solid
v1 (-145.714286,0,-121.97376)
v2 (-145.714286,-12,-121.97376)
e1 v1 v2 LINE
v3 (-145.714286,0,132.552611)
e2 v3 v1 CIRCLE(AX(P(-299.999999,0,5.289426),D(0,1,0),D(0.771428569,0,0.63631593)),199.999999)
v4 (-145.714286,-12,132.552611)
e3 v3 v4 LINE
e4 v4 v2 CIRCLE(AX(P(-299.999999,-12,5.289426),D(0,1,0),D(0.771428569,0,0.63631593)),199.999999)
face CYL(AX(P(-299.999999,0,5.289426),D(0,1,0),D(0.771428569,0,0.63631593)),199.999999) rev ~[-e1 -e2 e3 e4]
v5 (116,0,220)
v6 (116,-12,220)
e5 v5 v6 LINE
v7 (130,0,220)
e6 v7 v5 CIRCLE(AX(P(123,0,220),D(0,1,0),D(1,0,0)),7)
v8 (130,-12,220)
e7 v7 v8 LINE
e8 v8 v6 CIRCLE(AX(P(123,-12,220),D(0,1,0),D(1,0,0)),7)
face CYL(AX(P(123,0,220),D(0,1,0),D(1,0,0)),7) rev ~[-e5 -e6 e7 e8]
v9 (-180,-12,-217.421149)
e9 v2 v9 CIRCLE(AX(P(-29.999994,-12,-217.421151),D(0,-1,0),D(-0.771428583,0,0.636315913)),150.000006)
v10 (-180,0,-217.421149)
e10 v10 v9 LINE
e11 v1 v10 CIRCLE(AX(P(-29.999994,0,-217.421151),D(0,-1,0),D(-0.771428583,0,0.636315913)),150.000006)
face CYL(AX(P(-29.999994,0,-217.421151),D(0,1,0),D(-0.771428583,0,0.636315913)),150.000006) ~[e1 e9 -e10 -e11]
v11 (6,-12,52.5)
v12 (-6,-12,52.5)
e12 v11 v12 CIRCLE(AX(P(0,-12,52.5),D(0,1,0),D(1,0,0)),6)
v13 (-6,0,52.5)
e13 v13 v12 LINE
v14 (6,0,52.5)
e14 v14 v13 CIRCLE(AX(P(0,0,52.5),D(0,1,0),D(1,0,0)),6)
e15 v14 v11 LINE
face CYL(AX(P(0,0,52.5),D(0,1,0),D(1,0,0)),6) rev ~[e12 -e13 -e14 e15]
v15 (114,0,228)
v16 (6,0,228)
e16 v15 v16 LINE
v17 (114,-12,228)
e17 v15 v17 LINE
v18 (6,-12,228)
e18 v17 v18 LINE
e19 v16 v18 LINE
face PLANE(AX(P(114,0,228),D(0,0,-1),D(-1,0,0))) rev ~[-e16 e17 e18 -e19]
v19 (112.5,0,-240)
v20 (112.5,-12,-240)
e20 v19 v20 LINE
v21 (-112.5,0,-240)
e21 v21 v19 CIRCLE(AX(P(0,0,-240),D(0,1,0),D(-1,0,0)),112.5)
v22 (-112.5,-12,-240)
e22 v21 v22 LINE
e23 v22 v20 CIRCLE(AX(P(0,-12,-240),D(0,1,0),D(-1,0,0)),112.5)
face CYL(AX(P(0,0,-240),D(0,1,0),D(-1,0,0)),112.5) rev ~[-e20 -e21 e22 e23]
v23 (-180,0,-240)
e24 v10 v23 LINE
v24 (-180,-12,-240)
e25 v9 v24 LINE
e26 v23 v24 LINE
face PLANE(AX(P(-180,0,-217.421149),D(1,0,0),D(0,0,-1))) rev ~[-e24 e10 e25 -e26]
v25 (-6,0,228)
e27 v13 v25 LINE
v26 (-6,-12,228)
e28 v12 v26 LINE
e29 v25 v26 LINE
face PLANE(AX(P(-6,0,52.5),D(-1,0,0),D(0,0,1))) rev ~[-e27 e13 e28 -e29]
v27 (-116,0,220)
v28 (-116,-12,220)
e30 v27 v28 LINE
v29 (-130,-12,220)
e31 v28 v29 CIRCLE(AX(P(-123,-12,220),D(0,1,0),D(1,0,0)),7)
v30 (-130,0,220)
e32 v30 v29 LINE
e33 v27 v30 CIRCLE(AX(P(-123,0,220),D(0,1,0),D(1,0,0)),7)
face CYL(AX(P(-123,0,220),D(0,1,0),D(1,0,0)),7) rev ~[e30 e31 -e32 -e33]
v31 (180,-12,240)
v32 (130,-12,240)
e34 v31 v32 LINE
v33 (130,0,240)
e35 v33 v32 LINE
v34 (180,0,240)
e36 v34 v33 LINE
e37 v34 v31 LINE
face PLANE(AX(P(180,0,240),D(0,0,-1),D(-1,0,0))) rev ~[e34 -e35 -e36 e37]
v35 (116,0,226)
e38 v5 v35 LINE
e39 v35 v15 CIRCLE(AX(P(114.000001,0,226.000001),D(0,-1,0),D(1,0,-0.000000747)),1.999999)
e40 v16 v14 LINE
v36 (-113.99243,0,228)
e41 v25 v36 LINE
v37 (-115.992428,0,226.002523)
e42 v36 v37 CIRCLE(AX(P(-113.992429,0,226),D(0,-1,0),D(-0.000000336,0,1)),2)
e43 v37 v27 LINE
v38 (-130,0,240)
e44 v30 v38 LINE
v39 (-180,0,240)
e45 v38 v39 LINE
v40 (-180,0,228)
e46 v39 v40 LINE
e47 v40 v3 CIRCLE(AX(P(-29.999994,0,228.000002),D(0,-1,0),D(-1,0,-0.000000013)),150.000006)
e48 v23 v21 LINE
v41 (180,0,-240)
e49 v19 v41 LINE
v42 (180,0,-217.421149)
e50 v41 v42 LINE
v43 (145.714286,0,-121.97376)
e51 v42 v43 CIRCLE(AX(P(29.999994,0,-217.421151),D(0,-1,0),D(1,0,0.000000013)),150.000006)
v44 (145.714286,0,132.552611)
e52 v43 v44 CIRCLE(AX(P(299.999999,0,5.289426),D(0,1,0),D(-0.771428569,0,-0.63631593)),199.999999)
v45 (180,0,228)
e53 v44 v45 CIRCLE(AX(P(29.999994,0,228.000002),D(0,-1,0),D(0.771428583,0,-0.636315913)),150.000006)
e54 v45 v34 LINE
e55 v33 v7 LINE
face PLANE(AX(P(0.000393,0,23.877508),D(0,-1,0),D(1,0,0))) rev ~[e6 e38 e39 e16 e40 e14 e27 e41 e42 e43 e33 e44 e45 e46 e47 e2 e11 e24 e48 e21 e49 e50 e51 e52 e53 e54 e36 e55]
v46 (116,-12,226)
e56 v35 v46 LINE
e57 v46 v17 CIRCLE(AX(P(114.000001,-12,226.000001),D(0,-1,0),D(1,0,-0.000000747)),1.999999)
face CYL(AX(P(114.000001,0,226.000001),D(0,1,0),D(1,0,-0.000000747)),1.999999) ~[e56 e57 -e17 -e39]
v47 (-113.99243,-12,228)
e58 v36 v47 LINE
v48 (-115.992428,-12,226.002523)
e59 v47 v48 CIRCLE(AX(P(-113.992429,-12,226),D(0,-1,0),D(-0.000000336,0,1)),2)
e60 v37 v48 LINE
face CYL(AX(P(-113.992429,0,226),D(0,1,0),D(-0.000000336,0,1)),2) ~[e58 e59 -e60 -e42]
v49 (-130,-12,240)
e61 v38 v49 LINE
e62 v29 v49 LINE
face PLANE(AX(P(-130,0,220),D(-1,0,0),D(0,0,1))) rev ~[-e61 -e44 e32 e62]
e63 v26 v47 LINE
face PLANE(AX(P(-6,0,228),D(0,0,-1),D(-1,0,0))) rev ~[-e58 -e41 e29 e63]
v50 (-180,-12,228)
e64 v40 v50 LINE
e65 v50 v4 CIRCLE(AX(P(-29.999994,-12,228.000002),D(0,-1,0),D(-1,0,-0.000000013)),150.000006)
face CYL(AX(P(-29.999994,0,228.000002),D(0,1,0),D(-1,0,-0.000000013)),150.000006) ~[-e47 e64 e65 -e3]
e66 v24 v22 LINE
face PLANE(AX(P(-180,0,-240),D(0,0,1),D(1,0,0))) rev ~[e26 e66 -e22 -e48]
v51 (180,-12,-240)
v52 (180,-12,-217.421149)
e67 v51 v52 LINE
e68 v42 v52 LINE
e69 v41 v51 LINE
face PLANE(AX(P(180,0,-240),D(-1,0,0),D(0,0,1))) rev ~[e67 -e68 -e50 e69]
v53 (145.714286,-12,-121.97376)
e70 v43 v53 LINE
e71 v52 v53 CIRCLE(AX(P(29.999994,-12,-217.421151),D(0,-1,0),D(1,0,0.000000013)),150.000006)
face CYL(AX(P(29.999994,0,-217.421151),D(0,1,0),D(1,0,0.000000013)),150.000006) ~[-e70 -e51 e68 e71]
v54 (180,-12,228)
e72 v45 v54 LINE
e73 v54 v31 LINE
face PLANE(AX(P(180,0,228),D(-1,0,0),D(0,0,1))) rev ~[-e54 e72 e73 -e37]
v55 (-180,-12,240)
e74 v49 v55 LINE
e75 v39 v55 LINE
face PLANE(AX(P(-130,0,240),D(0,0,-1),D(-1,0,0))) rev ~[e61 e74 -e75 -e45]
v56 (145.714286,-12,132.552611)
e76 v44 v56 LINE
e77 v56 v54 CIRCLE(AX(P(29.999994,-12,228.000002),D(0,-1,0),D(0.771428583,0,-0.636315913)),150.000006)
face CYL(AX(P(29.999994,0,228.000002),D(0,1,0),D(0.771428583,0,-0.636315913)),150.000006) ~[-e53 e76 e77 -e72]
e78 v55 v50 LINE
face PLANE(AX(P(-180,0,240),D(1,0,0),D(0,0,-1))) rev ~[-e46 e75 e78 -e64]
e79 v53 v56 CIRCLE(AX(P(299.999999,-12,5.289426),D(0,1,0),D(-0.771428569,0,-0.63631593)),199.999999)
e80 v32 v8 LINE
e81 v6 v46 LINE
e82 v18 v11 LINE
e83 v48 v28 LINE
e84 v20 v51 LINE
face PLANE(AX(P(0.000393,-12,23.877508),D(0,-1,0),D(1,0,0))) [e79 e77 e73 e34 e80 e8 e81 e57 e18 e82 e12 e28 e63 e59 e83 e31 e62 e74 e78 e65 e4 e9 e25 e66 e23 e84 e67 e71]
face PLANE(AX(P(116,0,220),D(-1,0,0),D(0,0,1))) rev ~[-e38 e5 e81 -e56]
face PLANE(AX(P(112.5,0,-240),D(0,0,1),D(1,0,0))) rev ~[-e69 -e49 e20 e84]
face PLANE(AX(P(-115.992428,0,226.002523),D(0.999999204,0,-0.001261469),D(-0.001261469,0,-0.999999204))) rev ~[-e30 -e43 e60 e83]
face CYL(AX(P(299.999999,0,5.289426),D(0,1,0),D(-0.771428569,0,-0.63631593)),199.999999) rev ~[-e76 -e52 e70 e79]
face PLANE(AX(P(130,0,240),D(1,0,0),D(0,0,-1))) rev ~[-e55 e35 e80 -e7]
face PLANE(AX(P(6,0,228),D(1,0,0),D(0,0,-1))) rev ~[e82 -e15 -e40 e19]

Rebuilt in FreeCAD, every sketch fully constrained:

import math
import FreeCAD as App
import Part
import Sketcher

V = App.Vector

doc = App.newDocument("Part")
params = doc.addObject("Spreadsheet::Sheet", "Params")
for row, (alias, value) in enumerate([
    ("sketch1_radius", "199.999999 mm"),
    ("sketch1_radius2", "7 mm"),
    ("sketch1_radius3", "1.999999 mm"),
    ("sketch1_radius4", "6 mm"),
    ("sketch1_radius5", "112.5 mm"),
    ("pad1_length", "12 mm"),
], start=1):
    params.set(f"A{row}", alias)
    params.set(f"B{row}", "=" + value)
    params.setAlias(f"B{row}", alias)

body = doc.addObject("PartDesign::Body", "Body")

sketch1 = body.newObject("Sketcher::SketchObject", "Sketch")
sketch1.AttachmentSupport = (doc.getObject("XZ_Plane"), [""])
sketch1.MapMode = "FlatFace"
sketch1.addGeometry([
    Part.LineSegment(V(-180, -217.4, 0), V(-180, -240, 0)),
    Part.LineSegment(V(-180, -240, 0), V(-112.5, -240, 0)),
    Part.ArcOfCircle(Part.Circle(V(0, -240, 0), V(0, 0, 1), 112.5), math.radians(0), math.radians(180)),
    Part.LineSegment(V(112.5, -240, 0), V(180, -240, 0)),
    Part.LineSegment(V(180, -240, 0), V(180, -217.4, 0)),
    Part.ArcOfCircle(Part.Circle(V(30, -217.4, 0), V(0, 0, 1), 150), math.radians(0), math.radians(40)),
    Part.ArcOfCircle(Part.Circle(V(300, 5.3, 0), V(0, 0, 1), 200), math.radians(140), math.radians(220)),
    Part.ArcOfCircle(Part.Circle(V(30, 228, 0), V(0, 0, 1), 150), math.radians(-40), math.radians(0)),
    Part.LineSegment(V(180, 228, 0), V(180, 240, 0)),
    Part.LineSegment(V(180, 240, 0), V(130, 240, 0)),
    Part.LineSegment(V(130, 240, 0), V(130, 220, 0)),
    Part.ArcOfCircle(Part.Circle(V(123, 220, 0), V(0, 0, 1), 7), math.radians(180), math.radians(360)),
    Part.LineSegment(V(116, 220, 0), V(116, 226, 0)),
    Part.ArcOfCircle(Part.Circle(V(114, 226, 0), V(0, 0, 1), 2), math.radians(0), math.radians(90)),
    Part.LineSegment(V(114, 228, 0), V(6, 228, 0)),
    Part.LineSegment(V(6, 228, 0), V(6, 52.5, 0)),
    Part.ArcOfCircle(Part.Circle(V(0, 52.5, 0), V(0, 0, 1), 6), math.radians(180), math.radians(360)),
    Part.LineSegment(V(-6, 52.5, 0), V(-6, 228, 0)),
    Part.LineSegment(V(-6, 228, 0), V(-114, 228, 0)),
    Part.ArcOfCircle(Part.Circle(V(-114, 226, 0), V(0, 0, 1), 2), math.radians(90), math.radians(180)),
    Part.LineSegment(V(-116, 226, 0), V(-116, 220, 0)),
    Part.ArcOfCircle(Part.Circle(V(-123, 220, 0), V(0, 0, 1), 7), math.radians(180), math.radians(360)),
    Part.LineSegment(V(-130, 220, 0), V(-130, 240, 0)),
    Part.LineSegment(V(-130, 240, 0), V(-180, 240, 0)),
    Part.LineSegment(V(-180, 240, 0), V(-180, 228, 0)),
    Part.ArcOfCircle(Part.Circle(V(-30, 228, 0), V(0, 0, 1), 150), math.radians(-180), math.radians(-140)),
    Part.ArcOfCircle(Part.Circle(V(-300, 5.3, 0), V(0, 0, 1), 200), math.radians(-40), math.radians(40)),
    Part.ArcOfCircle(Part.Circle(V(-30, -217.4, 0), V(0, 0, 1), 150), math.radians(140), math.radians(180)),
], False)
sketch1.addConstraint([
    Sketcher.Constraint("Coincident", 0, 2, 1, 1),
    Sketcher.Constraint("Coincident", 1, 2, 2, 2),
    Sketcher.Constraint("Coincident", 2, 1, 3, 1),
    Sketcher.Constraint("Coincident", 3, 2, 4, 1),
    Sketcher.Constraint("Tangent", 4, 2, 5, 1),
    Sketcher.Constraint("Tangent", 5, 2, 6, 2),
    Sketcher.Constraint("Tangent", 6, 1, 7, 1),
    Sketcher.Constraint("Tangent", 7, 2, 8, 1),
    Sketcher.Constraint("Coincident", 8, 2, 9, 1),
    Sketcher.Constraint("Coincident", 9, 2, 10, 1),
    Sketcher.Constraint("Tangent", 10, 2, 11, 2),
    Sketcher.Constraint("Tangent", 11, 1, 12, 1),
    Sketcher.Constraint("Tangent", 12, 2, 13, 1),
    Sketcher.Constraint("Tangent", 13, 2, 14, 1),
    Sketcher.Constraint("Coincident", 14, 2, 15, 1),
    Sketcher.Constraint("Tangent", 15, 2, 16, 2),
    Sketcher.Constraint("Tangent", 16, 1, 17, 1),
    Sketcher.Constraint("Coincident", 17, 2, 18, 1),
    Sketcher.Constraint("Tangent", 18, 2, 19, 1),
    Sketcher.Constraint("Tangent", 19, 2, 20, 1),
    Sketcher.Constraint("Coincident", 20, 2, 21, 2),
    Sketcher.Constraint("Tangent", 21, 1, 22, 1),
    Sketcher.Constraint("Coincident", 22, 2, 23, 1),
    Sketcher.Constraint("Coincident", 23, 2, 24, 1),
    Sketcher.Constraint("Tangent", 24, 2, 25, 1),
    Sketcher.Constraint("Tangent", 25, 2, 26, 2),
    Sketcher.Constraint("Tangent", 26, 1, 27, 1),
    Sketcher.Constraint("Tangent", 27, 2, 0, 1),
    Sketcher.Constraint("Vertical", 0),
    Sketcher.Constraint("Horizontal", 1),
    Sketcher.Constraint("Horizontal", 3),
    Sketcher.Constraint("Vertical", 4),
    Sketcher.Constraint("Vertical", 8),
    Sketcher.Constraint("Horizontal", 9),
    Sketcher.Constraint("Vertical", 10),
    Sketcher.Constraint("Vertical", 12),
    Sketcher.Constraint("Horizontal", 14),
    Sketcher.Constraint("Vertical", 15),
    Sketcher.Constraint("Vertical", 17),
    Sketcher.Constraint("Horizontal", 18),
    Sketcher.Constraint("Vertical", 22),
    Sketcher.Constraint("Horizontal", 23),
    Sketcher.Constraint("Vertical", 24),
    Sketcher.Constraint("Equal", 5, 7),
    Sketcher.Constraint("Equal", 13, 19),
    Sketcher.Constraint("Equal", 11, 21),
    Sketcher.Constraint("Equal", 7, 25),
    Sketcher.Constraint("Equal", 6, 26),
    Sketcher.Constraint("Equal", 25, 27),
    Sketcher.Constraint("Symmetric", 0, 2, 8, 2, -1, 1),
    Sketcher.Constraint("Symmetric", 3, 2, 23, 2, -1, 1),
    Sketcher.Constraint("Symmetric", 11, 3, 21, 3, -2),
    Sketcher.Constraint("Symmetric", 7, 3, 25, 3, -2),
    Sketcher.Constraint("Symmetric", 1, 2, 2, 1, -2),
    Sketcher.Constraint("Symmetric", 14, 2, 17, 2, -2),
    Sketcher.Constraint("Horizontal", 6, 3, 26, 3),
    Sketcher.Constraint("Horizontal", 2, 3, 0, 2),
    Sketcher.Constraint("Horizontal", 7, 2, 13, 2),
    Sketcher.Constraint("Horizontal", 11, 1, 20, 2),
    Sketcher.Constraint("Radius", 6, 199.999999),
    Sketcher.Constraint("Radius", 11, 7.0),
    Sketcher.Constraint("Radius", 13, 1.999999),
    Sketcher.Constraint("Radius", 16, 6.0),
    Sketcher.Constraint("Radius", 2, 112.5),
    Sketcher.Constraint("DistanceX", 9, 2, 9, 1, 50.0),
    Sketcher.Constraint("DistanceX", 14, 2, 14, 1, 108.0),
    Sketcher.Constraint("DistanceY", 8, 1, 8, 2, 12.0),
    Sketcher.Constraint("DistanceY", 10, 2, 10, 1, 20.0),
    Sketcher.Constraint("DistanceY", 15, 2, 15, 1, 175.5),
    Sketcher.Constraint("DistanceY", 2, 3, -1, 1, 240.0),
    Sketcher.Constraint("DistanceX", -1, 1, 6, 3, 299.999999),
    Sketcher.Constraint("Radius", 5, 150.000006),
    Sketcher.Constraint("DistanceX", 18, 2, 18, 1, 107.99243),
])
sketch1.setExpression("Constraints[59]", "Params.sketch1_radius")
sketch1.setExpression("Constraints[60]", "Params.sketch1_radius2")
sketch1.setExpression("Constraints[61]", "Params.sketch1_radius3")
sketch1.setExpression("Constraints[62]", "Params.sketch1_radius4")
sketch1.setExpression("Constraints[63]", "Params.sketch1_radius5")
pad1 = body.newObject("PartDesign::Pad", "Pad")
pad1.Profile = sketch1
pad1.setExpression("Length", "Params.pad1_length")

doc.recompute()
